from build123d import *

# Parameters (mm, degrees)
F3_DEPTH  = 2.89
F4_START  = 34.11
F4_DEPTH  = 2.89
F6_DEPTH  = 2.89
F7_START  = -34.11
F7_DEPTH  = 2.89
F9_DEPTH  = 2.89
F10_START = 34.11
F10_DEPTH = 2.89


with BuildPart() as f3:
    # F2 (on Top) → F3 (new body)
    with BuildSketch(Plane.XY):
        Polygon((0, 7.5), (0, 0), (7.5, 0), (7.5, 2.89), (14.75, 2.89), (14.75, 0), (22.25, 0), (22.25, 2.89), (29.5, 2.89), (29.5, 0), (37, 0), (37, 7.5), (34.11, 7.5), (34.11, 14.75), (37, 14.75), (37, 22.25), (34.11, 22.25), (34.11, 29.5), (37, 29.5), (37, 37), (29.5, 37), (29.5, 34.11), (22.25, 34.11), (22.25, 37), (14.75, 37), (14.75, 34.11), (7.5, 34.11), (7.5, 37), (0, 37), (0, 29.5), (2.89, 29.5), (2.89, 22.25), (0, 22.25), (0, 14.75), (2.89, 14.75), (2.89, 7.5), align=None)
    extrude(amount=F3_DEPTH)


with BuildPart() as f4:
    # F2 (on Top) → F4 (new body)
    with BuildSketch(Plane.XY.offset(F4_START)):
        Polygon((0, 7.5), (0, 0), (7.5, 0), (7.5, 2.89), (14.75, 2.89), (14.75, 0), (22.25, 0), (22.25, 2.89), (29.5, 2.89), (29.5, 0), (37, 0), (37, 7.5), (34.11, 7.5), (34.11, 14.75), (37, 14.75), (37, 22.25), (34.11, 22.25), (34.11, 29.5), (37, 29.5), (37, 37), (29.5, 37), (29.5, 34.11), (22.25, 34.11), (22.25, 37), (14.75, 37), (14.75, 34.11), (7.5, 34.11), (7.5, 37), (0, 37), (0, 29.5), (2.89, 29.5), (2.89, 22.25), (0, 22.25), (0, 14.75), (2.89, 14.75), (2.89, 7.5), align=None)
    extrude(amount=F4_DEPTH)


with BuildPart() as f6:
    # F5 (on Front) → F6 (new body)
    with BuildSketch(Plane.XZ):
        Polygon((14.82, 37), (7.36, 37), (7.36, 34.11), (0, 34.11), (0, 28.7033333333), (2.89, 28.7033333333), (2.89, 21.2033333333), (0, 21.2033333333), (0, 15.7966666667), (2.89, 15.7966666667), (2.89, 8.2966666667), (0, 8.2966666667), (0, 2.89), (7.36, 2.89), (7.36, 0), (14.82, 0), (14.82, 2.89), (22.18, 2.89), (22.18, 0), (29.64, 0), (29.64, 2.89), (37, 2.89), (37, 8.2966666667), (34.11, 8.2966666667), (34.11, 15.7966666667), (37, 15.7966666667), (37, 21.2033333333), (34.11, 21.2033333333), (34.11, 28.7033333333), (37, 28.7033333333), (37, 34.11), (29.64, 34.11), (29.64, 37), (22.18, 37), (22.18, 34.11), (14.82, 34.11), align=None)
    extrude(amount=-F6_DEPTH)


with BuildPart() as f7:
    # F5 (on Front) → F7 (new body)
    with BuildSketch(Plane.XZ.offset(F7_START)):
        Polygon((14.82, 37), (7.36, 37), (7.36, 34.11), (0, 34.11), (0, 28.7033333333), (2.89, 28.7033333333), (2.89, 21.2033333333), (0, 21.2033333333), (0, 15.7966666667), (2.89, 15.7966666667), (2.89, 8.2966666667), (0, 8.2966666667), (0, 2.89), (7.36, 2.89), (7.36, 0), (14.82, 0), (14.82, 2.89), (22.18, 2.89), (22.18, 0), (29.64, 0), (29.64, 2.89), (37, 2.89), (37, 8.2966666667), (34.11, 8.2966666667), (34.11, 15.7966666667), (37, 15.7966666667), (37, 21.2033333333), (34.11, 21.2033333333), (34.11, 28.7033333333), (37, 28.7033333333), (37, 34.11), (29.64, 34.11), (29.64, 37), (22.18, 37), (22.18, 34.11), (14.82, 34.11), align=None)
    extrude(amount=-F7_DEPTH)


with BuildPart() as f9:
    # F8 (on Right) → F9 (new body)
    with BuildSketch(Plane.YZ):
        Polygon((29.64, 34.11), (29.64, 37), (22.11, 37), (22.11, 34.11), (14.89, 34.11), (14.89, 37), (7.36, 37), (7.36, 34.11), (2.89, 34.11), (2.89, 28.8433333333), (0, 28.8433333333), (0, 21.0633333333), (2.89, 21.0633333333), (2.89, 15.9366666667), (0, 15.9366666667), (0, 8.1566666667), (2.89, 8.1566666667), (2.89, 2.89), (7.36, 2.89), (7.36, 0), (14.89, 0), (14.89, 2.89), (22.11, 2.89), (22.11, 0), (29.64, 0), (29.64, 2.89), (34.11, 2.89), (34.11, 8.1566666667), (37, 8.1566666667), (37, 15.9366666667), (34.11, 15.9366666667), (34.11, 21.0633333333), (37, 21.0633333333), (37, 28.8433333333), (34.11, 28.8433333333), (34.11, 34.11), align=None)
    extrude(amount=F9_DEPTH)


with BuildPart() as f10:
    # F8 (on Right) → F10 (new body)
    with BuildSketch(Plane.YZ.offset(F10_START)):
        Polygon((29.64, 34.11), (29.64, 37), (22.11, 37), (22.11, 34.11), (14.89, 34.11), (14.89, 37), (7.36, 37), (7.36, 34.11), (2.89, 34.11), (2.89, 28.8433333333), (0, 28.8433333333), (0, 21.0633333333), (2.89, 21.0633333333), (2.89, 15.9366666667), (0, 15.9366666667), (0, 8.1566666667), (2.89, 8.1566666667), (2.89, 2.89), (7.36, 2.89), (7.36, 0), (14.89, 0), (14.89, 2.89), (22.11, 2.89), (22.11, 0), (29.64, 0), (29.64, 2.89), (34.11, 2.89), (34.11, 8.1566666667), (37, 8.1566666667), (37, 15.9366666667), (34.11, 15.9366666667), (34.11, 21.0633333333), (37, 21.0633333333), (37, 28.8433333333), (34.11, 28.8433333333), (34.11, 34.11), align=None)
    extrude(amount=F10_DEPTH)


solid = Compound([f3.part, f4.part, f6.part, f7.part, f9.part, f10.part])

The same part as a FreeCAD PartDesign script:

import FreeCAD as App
import Part
import Sketcher
from FreeCAD import Vector


def add_polygon(sketch, points):
    """Adds a closed chain of lines whose ends are joined by coincident constraints."""
    first, n = sketch.GeometryCount, len(points)
    for a, b in zip(points, points[1:] + points[:1]):
        sketch.addGeometry(Part.LineSegment(App.Vector(*a, 0), App.Vector(*b, 0)), False)
    for i in range(n):
        sketch.addConstraint(Sketcher.Constraint("Coincident", first + i, 2, first + (i + 1) % n, 1))

doc = App.newDocument("Part")
body = doc.addObject("PartDesign::Body", "Body")

# Sketch on XY plane
sketch1 = doc.addObject("Sketcher::SketchObject", "Sketch")
body.addObject(sketch1)
sketch1.AttachmentSupport = (doc.XY_Plane, [""])
sketch1.MapMode = "FlatFace"
add_polygon(sketch1, [(0, 7.5), (0, 0), (7.5, 0), (7.5, 2.89), (14.75, 2.89), (14.75, 0), (22.25, 0), (22.25, 2.89), (29.5, 2.89), (29.5, 0), (37, 0), (37, 7.5), (34.11, 7.5), (34.11, 14.75), (37, 14.75), (37, 22.25), (34.11, 22.25), (34.11, 29.5), (37, 29.5), (37, 37), (29.5, 37), (29.5, 34.11), (22.25, 34.11), (22.25, 37), (14.75, 37), (14.75, 34.11), (7.5, 34.11), (7.5, 37), (0, 37), (0, 29.5), (2.89, 29.5), (2.89, 22.25), (0, 22.25), (0, 14.75), (2.89, 14.75), (2.89, 7.5)])  # lines 0-35
sketch1.addConstraint([
    Sketcher.Constraint("Vertical", 0),
    Sketcher.Constraint("Horizontal", 1),
    Sketcher.Constraint("Vertical", 2),
    Sketcher.Constraint("Horizontal", 3),
    Sketcher.Constraint("Vertical", 4),
    Sketcher.Constraint("Horizontal", 5),
    Sketcher.Constraint("Vertical", 6),
    Sketcher.Constraint("Horizontal", 7),
    Sketcher.Constraint("Vertical", 8),
    Sketcher.Constraint("Horizontal", 9),
    Sketcher.Constraint("Vertical", 10),
    Sketcher.Constraint("Horizontal", 11),
    Sketcher.Constraint("Vertical", 12),
    Sketcher.Constraint("Horizontal", 13),
    Sketcher.Constraint("Vertical", 14),
    Sketcher.Constraint("Horizontal", 15),
    Sketcher.Constraint("Vertical", 16),
    Sketcher.Constraint("Horizontal", 17),
    Sketcher.Constraint("Vertical", 18),
    Sketcher.Constraint("Horizontal", 19),
    Sketcher.Constraint("Vertical", 20),
    Sketcher.Constraint("Horizontal", 21),
    Sketcher.Constraint("Vertical", 22),
    Sketcher.Constraint("Horizontal", 23),
    Sketcher.Constraint("Vertical", 24),
    Sketcher.Constraint("Horizontal", 25),
    Sketcher.Constraint("Vertical", 26),
    Sketcher.Constraint("Horizontal", 27),
    Sketcher.Constraint("Vertical", 28),
    Sketcher.Constraint("Horizontal", 29),
    Sketcher.Constraint("Vertical", 30),
    Sketcher.Constraint("Horizontal", 31),
    Sketcher.Constraint("Vertical", 32),
    Sketcher.Constraint("Horizontal", 33),
    Sketcher.Constraint("Vertical", 34),
    Sketcher.Constraint("Horizontal", 35),
    Sketcher.Constraint("Coincident", 0, 2, -1, 1),
    Sketcher.Constraint("PointOnObject", 4, 2, -1),
    Sketcher.Constraint("PointOnObject", 8, 2, -1),
    Sketcher.Constraint("PointOnObject", 27, 2, -2),
    Sketcher.Constraint("PointOnObject", 31, 2, -2),
    Sketcher.Constraint("Horizontal", 3, 2, 6, 2),
    Sketcher.Constraint("Horizontal", 19, 2, 22, 2),
    Sketcher.Constraint("Horizontal", 21, 2, 24, 2),
    Sketcher.Constraint("Horizontal", 23, 2, 26, 2),
    Sketcher.Constraint("Horizontal", 17, 2, 28, 2),
    Sketcher.Constraint("Horizontal", 15, 2, 30, 2),
    Sketcher.Constraint("Horizontal", 13, 2, 32, 2),
    Sketcher.Constraint("Horizontal", 11, 2, 34, 2),
    Sketcher.Constraint("Vertical", 10, 2, 13, 2),
    Sketcher.Constraint("Vertical", 12, 2, 15, 2),
    Sketcher.Constraint("Vertical", 14, 2, 17, 2),
    Sketcher.Constraint("Vertical", 8, 2, 19, 2),
    Sketcher.Constraint("Vertical", 6, 2, 21, 2),
    Sketcher.Constraint("Vertical", 4, 2, 23, 2),
    Sketcher.Constraint("Vertical", 2, 2, 25, 2),
    Sketcher.Constraint("Vertical", 30, 2, 33, 2),
    Sketcher.Constraint("Equal", 1, 5),
    Sketcher.Constraint("Equal", 3, 7),
    Sketcher.Constraint("Equal", 5, 9),
    Sketcher.Constraint("Equal", 17, 29),
    Sketcher.Constraint("Equal", 27, 0),
    Sketcher.Constraint("Equal", 35, 2),
    Sketcher.Constraint("Equal", 25, 12),
    Sketcher.Constraint("Equal", 10, 14),
    Sketcher.Constraint("Equal", 12, 16),
    Sketcher.Constraint("Equal", 14, 18),
    Sketcher.Constraint("Equal", 8, 20),
    Sketcher.Constraint("DistanceX", 1, 1, 1, 2, 7.5),
    Sketcher.Constraint("DistanceX", -1, 1, 9, 2, 37.0),
    Sketcher.Constraint("DistanceX", 11, 2, 11, 1, 2.89),
])
pad1 = doc.addObject("PartDesign::Pad", "Pad")
body.addObject(pad1)
pad1.Profile = sketch1
pad1.Length = 2.89
body2 = doc.addObject("PartDesign::Body", "Body001")

# Sketch on XY plane
sketch2 = doc.addObject("Sketcher::SketchObject", "Sketch001")
body2.addObject(sketch2)
sketch2.AttachmentSupport = (doc.getObject("XY_Plane001"), [""])
sketch2.MapMode = "FlatFace"
sketch2.AttachmentOffset = App.Placement(Vector(0, 0, 34.11), App.Rotation())
add_polygon(sketch2, [(0, 7.5), (0, 0), (7.5, 0), (7.5, 2.89), (14.75, 2.89), (14.75, 0), (22.25, 0), (22.25, 2.89), (29.5, 2.89), (29.5, 0), (37, 0), (37, 7.5), (34.11, 7.5), (34.11, 14.75), (37, 14.75), (37, 22.25), (34.11, 22.25), (34.11, 29.5), (37, 29.5), (37, 37), (29.5, 37), (29.5, 34.11), (22.25, 34.11), (22.25, 37), (14.75, 37), (14.75, 34.11), (7.5, 34.11), (7.5, 37), (0, 37), (0, 29.5), (2.89, 29.5), (2.89, 22.25), (0, 22.25), (0, 14.75), (2.89, 14.75), (2.89, 7.5)])  # lines 0-35
sketch2.addConstraint([
    Sketcher.Constraint("Vertical", 0),
    Sketcher.Constraint("Horizontal", 1),
    Sketcher.Constraint("Vertical", 2),
    Sketcher.Constraint("Horizontal", 3),
    Sketcher.Constraint("Vertical", 4),
    Sketcher.Constraint("Horizontal", 5),
    Sketcher.Constraint("Vertical", 6),
    Sketcher.Constraint("Horizontal", 7),
    Sketcher.Constraint("Vertical", 8),
    Sketcher.Constraint("Horizontal", 9),
    Sketcher.Constraint("Vertical", 10),
    Sketcher.Constraint("Horizontal", 11),
    Sketcher.Constraint("Vertical", 12),
    Sketcher.Constraint("Horizontal", 13),
    Sketcher.Constraint("Vertical", 14),
    Sketcher.Constraint("Horizontal", 15),
    Sketcher.Constraint("Vertical", 16),
    Sketcher.Constraint("Horizontal", 17),
    Sketcher.Constraint("Vertical", 18),
    Sketcher.Constraint("Horizontal", 19),
    Sketcher.Constraint("Vertical", 20),
    Sketcher.Constraint("Horizontal", 21),
    Sketcher.Constraint("Vertical", 22),
    Sketcher.Constraint("Horizontal", 23),
    Sketcher.Constraint("Vertical", 24),
    Sketcher.Constraint("Horizontal", 25),
    Sketcher.Constraint("Vertical", 26),
    Sketcher.Constraint("Horizontal", 27),
    Sketcher.Constraint("Vertical", 28),
    Sketcher.Constraint("Horizontal", 29),
    Sketcher.Constraint("Vertical", 30),
    Sketcher.Constraint("Horizontal", 31),
    Sketcher.Constraint("Vertical", 32),
    Sketcher.Constraint("Horizontal", 33),
    Sketcher.Constraint("Vertical", 34),
    Sketcher.Constraint("Horizontal", 35),
    Sketcher.Constraint("Coincident", 0, 2, -1, 1),
    Sketcher.Constraint("PointOnObject", 4, 2, -1),
    Sketcher.Constraint("PointOnObject", 8, 2, -1),
    Sketcher.Constraint("PointOnObject", 27, 2, -2),
    Sketcher.Constraint("PointOnObject", 31, 2, -2),
    Sketcher.Constraint("Horizontal", 3, 2, 6, 2),
    Sketcher.Constraint("Horizontal", 19, 2, 22, 2),
    Sketcher.Constraint("Horizontal", 21, 2, 24, 2),
    Sketcher.Constraint("Horizontal", 23, 2, 26, 2),
    Sketcher.Constraint("Horizontal", 17, 2, 28, 2),
    Sketcher.Constraint("Horizontal", 15, 2, 30, 2),
    Sketcher.Constraint("Horizontal", 13, 2, 32, 2),
    Sketcher.Constraint("Horizontal", 11, 2, 34, 2),
    Sketcher.Constraint("Vertical", 10, 2, 13, 2),
    Sketcher.Constraint("Vertical", 12, 2, 15, 2),
    Sketcher.Constraint("Vertical", 14, 2, 17, 2),
    Sketcher.Constraint("Vertical", 8, 2, 19, 2),
    Sketcher.Constraint("Vertical", 6, 2, 21, 2),
    Sketcher.Constraint("Vertical", 4, 2, 23, 2),
    Sketcher.Constraint("Vertical", 2, 2, 25, 2),
    Sketcher.Constraint("Vertical", 30, 2, 33, 2),
    Sketcher.Constraint("Equal", 1, 5),
    Sketcher.Constraint("Equal", 3, 7),
    Sketcher.Constraint("Equal", 5, 9),
    Sketcher.Constraint("Equal", 17, 29),
    Sketcher.Constraint("Equal", 27, 0),
    Sketcher.Constraint("Equal", 35, 2),
    Sketcher.Constraint("Equal", 25, 12),
    Sketcher.Constraint("Equal", 10, 14),
    Sketcher.Constraint("Equal", 12, 16),
    Sketcher.Constraint("Equal", 14, 18),
    Sketcher.Constraint("Equal", 8, 20),
    Sketcher.Constraint("DistanceX", 1, 1, 1, 2, 7.5),
    Sketcher.Constraint("DistanceX", -1, 1, 9, 2, 37.0),
    Sketcher.Constraint("DistanceX", 11, 2, 11, 1, 2.89),
])
pad2 = doc.addObject("PartDesign::Pad", "Pad001")
body2.addObject(pad2)
pad2.Profile = sketch2
pad2.Length = 2.89
body3 = doc.addObject("PartDesign::Body", "Body002")

# Sketch on XZ plane
sketch3 = doc.addObject("Sketcher::SketchObject", "Sketch002")
body3.addObject(sketch3)
sketch3.AttachmentSupport = (doc.getObject("XZ_Plane002"), [""])
sketch3.MapMode = "FlatFace"
add_polygon(sketch3, [(14.82, 37), (7.36, 37), (7.36, 34.11), (0, 34.11), (0, 28.703333), (2.89, 28.703333), (2.89, 21.203333), (0, 21.203333), (0, 15.796667), (2.89, 15.796667), (2.89, 8.296667), (0, 8.296667), (0, 2.89), (7.36, 2.89), (7.36, 0), (14.82, 0), (14.82, 2.89), (22.18, 2.89), (22.18, 0), (29.64, 0), (29.64, 2.89), (37, 2.89), (37, 8.296667), (34.11, 8.296667), (34.11, 15.796667), (37, 15.796667), (37, 21.203333), (34.11, 21.203333), (34.11, 28.703333), (37, 28.703333), (37, 34.11), (29.64, 34.11), (29.64, 37), (22.18, 37), (22.18, 34.11), (14.82, 34.11)])  # lines 0-35
sketch3.addConstraint([
    Sketcher.Constraint("Horizontal", 0),
    Sketcher.Constraint("Vertical", 1),
    Sketcher.Constraint("Horizontal", 2),
    Sketcher.Constraint("Vertical", 3),
    Sketcher.Constraint("Horizontal", 4),
    Sketcher.Constraint("Vertical", 5),
    Sketcher.Constraint("Horizontal", 6),
    Sketcher.Constraint("Vertical", 7),
    Sketcher.Constraint("Horizontal", 8),
    Sketcher.Constraint("Vertical", 9),
    Sketcher.Constraint("Horizontal", 10),
    Sketcher.Constraint("Vertical", 11),
    Sketcher.Constraint("Horizontal", 12),
    Sketcher.Constraint("Vertical", 13),
    Sketcher.Constraint("Horizontal", 14),
    Sketcher.Constraint("Vertical", 15),
    Sketcher.Constraint("Horizontal", 16),
    Sketcher.Constraint("Vertical", 17),
    Sketcher.Constraint("Horizontal", 18),
    Sketcher.Constraint("Vertical", 19),
    Sketcher.Constraint("Horizontal", 20),
    Sketcher.Constraint("Vertical", 21),
    Sketcher.Constraint("Horizontal", 22),
    Sketcher.Constraint("Vertical", 23),
    Sketcher.Constraint("Horizontal", 24),
    Sketcher.Constraint("Vertical", 25),
    Sketcher.Constraint("Horizontal", 26),
    Sketcher.Constraint("Vertical", 27),
    Sketcher.Constraint("Horizontal", 28),
    Sketcher.Constraint("Vertical", 29),
    Sketcher.Constraint("Horizontal", 30),
    Sketcher.Constraint("Vertical", 31),
    Sketcher.Constraint("Horizontal", 32),
    Sketcher.Constraint("Vertical", 33),
    Sketcher.Constraint("Horizontal", 34),
    Sketcher.Constraint("Vertical", 35),
    Sketcher.Constraint("PointOnObject", 2, 2, -2),
    Sketcher.Constraint("PointOnObject", 6, 2, -2),
    Sketcher.Constraint("PointOnObject", 10, 2, -2),
    Sketcher.Constraint("PointOnObject", 13, 2, -1),
    Sketcher.Constraint("PointOnObject", 17, 2, -1),
    Sketcher.Constraint("Horizontal", 12, 2, 15, 2),
    Sketcher.Constraint("Horizontal", 16, 2, 19, 2),
    Sketcher.Constraint("Horizontal", 10, 2, 21, 2),
    Sketcher.Constraint("Horizontal", 8, 2, 23, 2),
    Sketcher.Constraint("Horizontal", 6, 2, 25, 2),
    Sketcher.Constraint("Horizontal", 4, 2, 27, 2),
    Sketcher.Constraint("Horizontal", 2, 2, 29, 2),
    Sketcher.Constraint("Horizontal", 0, 2, 31, 2),
    Sketcher.Constraint("Horizontal", 30, 2, 33, 2),
    Sketcher.Constraint("Vertical", 5, 2, 8, 2),
    Sketcher.Constraint("Vertical", 1, 2, 12, 2),
    Sketcher.Constraint("Vertical", 21, 2, 24, 2),
    Sketcher.Constraint("Vertical", 23, 2, 26, 2),
    Sketcher.Constraint("Vertical", 25, 2, 28, 2),
    Sketcher.Constraint("Vertical", 19, 2, 30, 2),
    Sketcher.Constraint("Vertical", 17, 2, 32, 2),
    Sketcher.Constraint("Vertical", 15, 2, 34, 2),
    Sketcher.Constraint("Equal", 12, 16),
    Sketcher.Constraint("Equal", 14, 18),
    Sketcher.Constraint("Equal", 16, 20),
    Sketcher.Constraint("Equal", 10, 22),
    Sketcher.Constraint("Equal", 28, 1),
    Sketcher.Constraint("Equal", 3, 7),
    Sketcher.Constraint("Equal", 5, 9),
    Sketcher.Constraint("Equal", 7, 11),
    Sketcher.Constraint("Equal", 1, 13),
    Sketcher.Constraint("DistanceY", 5, 2, 5, 1, 7.5),
    Sketcher.Constraint("DistanceY", -1, 1, 0, 2, 37.0),
    Sketcher.Constraint("DistanceX", -1, 1, 20, 2, 37.0),
    Sketcher.Constraint("DistanceX", 0, 2, 0, 1, 7.46),
    Sketcher.Constraint("DistanceX", 4, 1, 4, 2, 2.89),
])
pad3 = doc.addObject("PartDesign::Pad", "Pad002")
body3.addObject(pad3)
pad3.Profile = sketch3
pad3.Length = 2.89
pad3.Reversed = True
body4 = doc.addObject("PartDesign::Body", "Body003")

# Sketch on XZ plane
sketch4 = doc.addObject("Sketcher::SketchObject", "Sketch003")
body4.addObject(sketch4)
sketch4.AttachmentSupport = (doc.getObject("XZ_Plane003"), [""])
sketch4.MapMode = "FlatFace"
sketch4.AttachmentOffset = App.Placement(Vector(0, 0, -34.11), App.Rotation())
add_polygon(sketch4, [(14.82, 37), (7.36, 37), (7.36, 34.11), (0, 34.11), (0, 28.703333), (2.89, 28.703333), (2.89, 21.203333), (0, 21.203333), (0, 15.796667), (2.89, 15.796667), (2.89, 8.296667), (0, 8.296667), (0, 2.89), (7.36, 2.89), (7.36, 0), (14.82, 0), (14.82, 2.89), (22.18, 2.89), (22.18, 0), (29.64, 0), (29.64, 2.89), (37, 2.89), (37, 8.296667), (34.11, 8.296667), (34.11, 15.796667), (37, 15.796667), (37, 21.203333), (34.11, 21.203333), (34.11, 28.703333), (37, 28.703333), (37, 34.11), (29.64, 34.11), (29.64, 37), (22.18, 37), (22.18, 34.11), (14.82, 34.11)])  # lines 0-35
sketch4.addConstraint([
    Sketcher.Constraint("Horizontal", 0),
    Sketcher.Constraint("Vertical", 1),
    Sketcher.Constraint("Horizontal", 2),
    Sketcher.Constraint("Vertical", 3),
    Sketcher.Constraint("Horizontal", 4),
    Sketcher.Constraint("Vertical", 5),
    Sketcher.Constraint("Horizontal", 6),
    Sketcher.Constraint("Vertical", 7),
    Sketcher.Constraint("Horizontal", 8),
    Sketcher.Constraint("Vertical", 9),
    Sketcher.Constraint("Horizontal", 10),
    Sketcher.Constraint("Vertical", 11),
    Sketcher.Constraint("Horizontal", 12),
    Sketcher.Constraint("Vertical", 13),
    Sketcher.Constraint("Horizontal", 14),
    Sketcher.Constraint("Vertical", 15),
    Sketcher.Constraint("Horizontal", 16),
    Sketcher.Constraint("Vertical", 17),
    Sketcher.Constraint("Horizontal", 18),
    Sketcher.Constraint("Vertical", 19),
    Sketcher.Constraint("Horizontal", 20),
    Sketcher.Constraint("Vertical", 21),
    Sketcher.Constraint("Horizontal", 22),
    Sketcher.Constraint("Vertical", 23),
    Sketcher.Constraint("Horizontal", 24),
    Sketcher.Constraint("Vertical", 25),
    Sketcher.Constraint("Horizontal", 26),
    Sketcher.Constraint("Vertical", 27),
    Sketcher.Constraint("Horizontal", 28),
    Sketcher.Constraint("Vertical", 29),
    Sketcher.Constraint("Horizontal", 30),
    Sketcher.Constraint("Vertical", 31),
    Sketcher.Constraint("Horizontal", 32),
    Sketcher.Constraint("Vertical", 33),
    Sketcher.Constraint("Horizontal", 34),
    Sketcher.Constraint("Vertical", 35),
    Sketcher.Constraint("PointOnObject", 2, 2, -2),
    Sketcher.Constraint("PointOnObject", 6, 2, -2),
    Sketcher.Constraint("PointOnObject", 10, 2, -2),
    Sketcher.Constraint("PointOnObject", 13, 2, -1),
    Sketcher.Constraint("PointOnObject", 17, 2, -1),
    Sketcher.Constraint("Horizontal", 12, 2, 15, 2),
    Sketcher.Constraint("Horizontal", 16, 2, 19, 2),
    Sketcher.Constraint("Horizontal", 10, 2, 21, 2),
    Sketcher.Constraint("Horizontal", 8, 2, 23, 2),
    Sketcher.Constraint("Horizontal", 6, 2, 25, 2),
    Sketcher.Constraint("Horizontal", 4, 2, 27, 2),
    Sketcher.Constraint("Horizontal", 2, 2, 29, 2),
    Sketcher.Constraint("Horizontal", 0, 2, 31, 2),
    Sketcher.Constraint("Horizontal", 30, 2, 33, 2),
    Sketcher.Constraint("Vertical", 5, 2, 8, 2),
    Sketcher.Constraint("Vertical", 1, 2, 12, 2),
    Sketcher.Constraint("Vertical", 21, 2, 24, 2),
    Sketcher.Constraint("Vertical", 23, 2, 26, 2),
    Sketcher.Constraint("Vertical", 25, 2, 28, 2),
    Sketcher.Constraint("Vertical", 19, 2, 30, 2),
    Sketcher.Constraint("Vertical", 17, 2, 32, 2),
    Sketcher.Constraint("Vertical", 15, 2, 34, 2),
    Sketcher.Constraint("Equal", 12, 16),
    Sketcher.Constraint("Equal", 14, 18),
    Sketcher.Constraint("Equal", 16, 20),
    Sketcher.Constraint("Equal", 10, 22),
    Sketcher.Constraint("Equal", 28, 1),
    Sketcher.Constraint("Equal", 3, 7),
    Sketcher.Constraint("Equal", 5, 9),
    Sketcher.Constraint("Equal", 7, 11),
    Sketcher.Constraint("Equal", 1, 13),
    Sketcher.Constraint("DistanceY", 5, 2, 5, 1, 7.5),
    Sketcher.Constraint("DistanceY", -1, 1, 0, 2, 37.0),
    Sketcher.Constraint("DistanceX", -1, 1, 20, 2, 37.0),
    Sketcher.Constraint("DistanceX", 0, 2, 0, 1, 7.46),
    Sketcher.Constraint("DistanceX", 4, 1, 4, 2, 2.89),
])
pad4 = doc.addObject("PartDesign::Pad", "Pad003")
body4.addObject(pad4)
pad4.Profile = sketch4
pad4.Length = 2.89
pad4.Reversed = True
body5 = doc.addObject("PartDesign::Body", "Body004")

# Sketch on YZ plane
sketch5 = doc.addObject("Sketcher::SketchObject", "Sketch004")
body5.addObject(sketch5)
sketch5.AttachmentSupport = (doc.getObject("YZ_Plane004"), [""])
sketch5.MapMode = "FlatFace"
add_polygon(sketch5, [(29.64, 34.11), (29.64, 37), (22.11, 37), (22.11, 34.11), (14.89, 34.11), (14.89, 37), (7.36, 37), (7.36, 34.11), (2.89, 34.11), (2.89, 28.843333), (0, 28.843333), (0, 21.063333), (2.89, 21.063333), (2.89, 15.936667), (0, 15.936667), (0, 8.156667), (2.89, 8.156667), (2.89, 2.89), (7.36, 2.89), (7.36, 0), (14.89, 0), (14.89, 2.89), (22.11, 2.89), (22.11, 0), (29.64, 0), (29.64, 2.89), (34.11, 2.89), (34.11, 8.156667), (37, 8.156667), (37, 15.936667), (34.11, 15.936667), (34.11, 21.063333), (37, 21.063333), (37, 28.843333), (34.11, 28.843333), (34.11, 34.11)])  # lines 0-35
sketch5.addConstraint([
    Sketcher.Constraint("Vertical", 0),
    Sketcher.Constraint("Horizontal", 1),
    Sketcher.Constraint("Vertical", 2),
    Sketcher.Constraint("Horizontal", 3),
    Sketcher.Constraint("Vertical", 4),
    Sketcher.Constraint("Horizontal", 5),
    Sketcher.Constraint("Vertical", 6),
    Sketcher.Constraint("Horizontal", 7),
    Sketcher.Constraint("Vertical", 8),
    Sketcher.Constraint("Horizontal", 9),
    Sketcher.Constraint("Vertical", 10),
    Sketcher.Constraint("Horizontal", 11),
    Sketcher.Constraint("Vertical", 12),
    Sketcher.Constraint("Horizontal", 13),
    Sketcher.Constraint("Vertical", 14),
    Sketcher.Constraint("Horizontal", 15),
    Sketcher.Constraint("Vertical", 16),
    Sketcher.Constraint("Horizontal", 17),
    Sketcher.Constraint("Vertical", 18),
    Sketcher.Constraint("Horizontal", 19),
    Sketcher.Constraint("Vertical", 20),
    Sketcher.Constraint("Horizontal", 21),
    Sketcher.Constraint("Vertical", 22),
    Sketcher.Constraint("Horizontal", 23),
    Sketcher.Constraint("Vertical", 24),
    Sketcher.Constraint("Horizontal", 25),
    Sketcher.Constraint("Vertical", 26),
    Sketcher.Constraint("Horizontal", 27),
    Sketcher.Constraint("Vertical", 28),
    Sketcher.Constraint("Horizontal", 29),
    Sketcher.Constraint("Vertical", 30),
    Sketcher.Constraint("Horizontal", 31),
    Sketcher.Constraint("Vertical", 32),
    Sketcher.Constraint("Horizontal", 33),
    Sketcher.Constraint("Vertical", 34),
    Sketcher.Constraint("Horizontal", 35),
    Sketcher.Constraint("PointOnObject", 9, 2, -2),
    Sketcher.Constraint("PointOnObject", 13, 2, -2),
    Sketcher.Constraint("PointOnObject", 18, 2, -1),
    Sketcher.Constraint("PointOnObject", 22, 2, -1),
    Sketcher.Constraint("Horizontal", 1, 2, 4, 2),
    Sketcher.Constraint("Horizontal", 3, 2, 6, 2),
    Sketcher.Constraint("Horizontal", 17, 2, 20, 2),
    Sketcher.Constraint("Horizontal", 21, 2, 24, 2),
    Sketcher.Constraint("Horizontal", 15, 2, 26, 2),
    Sketcher.Constraint("Horizontal", 13, 2, 28, 2),
    Sketcher.Constraint("Horizontal", 11, 2, 30, 2),
    Sketcher.Constraint("Horizontal", 9, 2, 32, 2),
    Sketcher.Constraint("Horizontal", 7, 2, 34, 2),
    Sketcher.Constraint("Vertical", 8, 2, 11, 2),
    Sketcher.Constraint("Vertical", 12, 2, 15, 2),
    Sketcher.Constraint("Vertical", 6, 2, 17, 2),
    Sketcher.Constraint("Vertical", 4, 2, 19, 2),
    Sketcher.Constraint("Vertical", 2, 2, 21, 2),
    Sketcher.Constraint("Vertical", 0, 2, 23, 2),
    Sketcher.Constraint("Vertical", 26, 2, 29, 2),
    Sketcher.Constraint("Vertical", 28, 2, 31, 2),
    Sketcher.Constraint("Vertical", 30, 2, 33, 2),
    Sketcher.Constraint("Equal", 1, 5),
    Sketcher.Constraint("Equal", 17, 25),
    Sketcher.Constraint("Equal", 15, 27),
    Sketcher.Constraint("Equal", 33, 0),
    Sketcher.Constraint("Equal", 10, 14),
    Sketcher.Constraint("Equal", 8, 16),
    Sketcher.Constraint("Equal", 6, 18),
    Sketcher.Constraint("DistanceY", -1, 1, 0, 2, 37.0),
    Sketcher.Constraint("DistanceX", -1, 1, 27, 2, 37.0),
    Sketcher.Constraint("DistanceX", 7, 2, 3, 2, 12.0),
    Sketcher.Constraint("DistanceX", 1, 2, 1, 1, 7.53),
    Sketcher.Constraint("DistanceX", 3, 2, 3, 1, 7.22),
    Sketcher.Constraint("DistanceY", 10, 2, 10, 1, 7.78),
    Sketcher.Constraint("DistanceY", 8, 2, 8, 1, 5.266667),
])
pad5 = doc.addObject("PartDesign::Pad", "Pad004")
body5.addObject(pad5)
pad5.Profile = sketch5
pad5.Length = 2.89
body6 = doc.addObject("PartDesign::Body", "Body005")

# Sketch on YZ plane
sketch6 = doc.addObject("Sketcher::SketchObject", "Sketch005")
body6.addObject(sketch6)
sketch6.AttachmentSupport = (doc.getObject("YZ_Plane005"), [""])
sketch6.MapMode = "FlatFace"
sketch6.AttachmentOffset = App.Placement(Vector(0, 0, 34.11), App.Rotation())
add_polygon(sketch6, [(29.64, 34.11), (29.64, 37), (22.11, 37), (22.11, 34.11), (14.89, 34.11), (14.89, 37), (7.36, 37), (7.36, 34.11), (2.89, 34.11), (2.89, 28.843333), (0, 28.843333), (0, 21.063333), (2.89, 21.063333), (2.89, 15.936667), (0, 15.936667), (0, 8.156667), (2.89, 8.156667), (2.89, 2.89), (7.36, 2.89), (7.36, 0), (14.89, 0), (14.89, 2.89), (22.11, 2.89), (22.11, 0), (29.64, 0), (29.64, 2.89), (34.11, 2.89), (34.11, 8.156667), (37, 8.156667), (37, 15.936667), (34.11, 15.936667), (34.11, 21.063333), (37, 21.063333), (37, 28.843333), (34.11, 28.843333), (34.11, 34.11)])  # lines 0-35
sketch6.addConstraint([
    Sketcher.Constraint("Vertical", 0),
    Sketcher.Constraint("Horizontal", 1),
    Sketcher.Constraint("Vertical", 2),
    Sketcher.Constraint("Horizontal", 3),
    Sketcher.Constraint("Vertical", 4),
    Sketcher.Constraint("Horizontal", 5),
    Sketcher.Constraint("Vertical", 6),
    Sketcher.Constraint("Horizontal", 7),
    Sketcher.Constraint("Vertical", 8),
    Sketcher.Constraint("Horizontal", 9),
    Sketcher.Constraint("Vertical", 10),
    Sketcher.Constraint("Horizontal", 11),
    Sketcher.Constraint("Vertical", 12),
    Sketcher.Constraint("Horizontal", 13),
    Sketcher.Constraint("Vertical", 14),
    Sketcher.Constraint("Horizontal", 15),
    Sketcher.Constraint("Vertical", 16),
    Sketcher.Constraint("Horizontal", 17),
    Sketcher.Constraint("Vertical", 18),
    Sketcher.Constraint("Horizontal", 19),
    Sketcher.Constraint("Vertical", 20),
    Sketcher.Constraint("Horizontal", 21),
    Sketcher.Constraint("Vertical", 22),
    Sketcher.Constraint("Horizontal", 23),
    Sketcher.Constraint("Vertical", 24),
    Sketcher.Constraint("Horizontal", 25),
    Sketcher.Constraint("Vertical", 26),
    Sketcher.Constraint("Horizontal", 27),
    Sketcher.Constraint("Vertical", 28),
    Sketcher.Constraint("Horizontal", 29),
    Sketcher.Constraint("Vertical", 30),
    Sketcher.Constraint("Horizontal", 31),
    Sketcher.Constraint("Vertical", 32),
    Sketcher.Constraint("Horizontal", 33),
    Sketcher.Constraint("Vertical", 34),
    Sketcher.Constraint("Horizontal", 35),
    Sketcher.Constraint("PointOnObject", 9, 2, -2),
    Sketcher.Constraint("PointOnObject", 13, 2, -2),
    Sketcher.Constraint("PointOnObject", 18, 2, -1),
    Sketcher.Constraint("PointOnObject", 22, 2, -1),
    Sketcher.Constraint("Horizontal", 1, 2, 4, 2),
    Sketcher.Constraint("Horizontal", 3, 2, 6, 2),
    Sketcher.Constraint("Horizontal", 17, 2, 20, 2),
    Sketcher.Constraint("Horizontal", 21, 2, 24, 2),
    Sketcher.Constraint("Horizontal", 15, 2, 26, 2),
    Sketcher.Constraint("Horizontal", 13, 2, 28, 2),
    Sketcher.Constraint("Horizontal", 11, 2, 30, 2),
    Sketcher.Constraint("Horizontal", 9, 2, 32, 2),
    Sketcher.Constraint("Horizontal", 7, 2, 34, 2),
    Sketcher.Constraint("Vertical", 8, 2, 11, 2),
    Sketcher.Constraint("Vertical", 12, 2, 15, 2),
    Sketcher.Constraint("Vertical", 6, 2, 17, 2),
    Sketcher.Constraint("Vertical", 4, 2, 19, 2),
    Sketcher.Constraint("Vertical", 2, 2, 21, 2),
    Sketcher.Constraint("Vertical", 0, 2, 23, 2),
    Sketcher.Constraint("Vertical", 26, 2, 29, 2),
    Sketcher.Constraint("Vertical", 28, 2, 31, 2),
    Sketcher.Constraint("Vertical", 30, 2, 33, 2),
    Sketcher.Constraint("Equal", 1, 5),
    Sketcher.Constraint("Equal", 17, 25),
    Sketcher.Constraint("Equal", 15, 27),
    Sketcher.Constraint("Equal", 33, 0),
    Sketcher.Constraint("Equal", 10, 14),
    Sketcher.Constraint("Equal", 8, 16),
    Sketcher.Constraint("Equal", 6, 18),
    Sketcher.Constraint("DistanceY", -1, 1, 0, 2, 37.0),
    Sketcher.Constraint("DistanceX", -1, 1, 27, 2, 37.0),
    Sketcher.Constraint("DistanceX", 7, 2, 3, 2, 12.0),
    Sketcher.Constraint("DistanceX", 1, 2, 1, 1, 7.53),
    Sketcher.Constraint("DistanceX", 3, 2, 3, 1, 7.22),
    Sketcher.Constraint("DistanceY", 10, 2, 10, 1, 7.78),
    Sketcher.Constraint("DistanceY", 8, 2, 8, 1, 5.266667),
])
pad6 = doc.addObject("PartDesign::Pad", "Pad005")
body6.addObject(pad6)
pad6.Profile = sketch6
pad6.Length = 2.89

doc.recompute()
